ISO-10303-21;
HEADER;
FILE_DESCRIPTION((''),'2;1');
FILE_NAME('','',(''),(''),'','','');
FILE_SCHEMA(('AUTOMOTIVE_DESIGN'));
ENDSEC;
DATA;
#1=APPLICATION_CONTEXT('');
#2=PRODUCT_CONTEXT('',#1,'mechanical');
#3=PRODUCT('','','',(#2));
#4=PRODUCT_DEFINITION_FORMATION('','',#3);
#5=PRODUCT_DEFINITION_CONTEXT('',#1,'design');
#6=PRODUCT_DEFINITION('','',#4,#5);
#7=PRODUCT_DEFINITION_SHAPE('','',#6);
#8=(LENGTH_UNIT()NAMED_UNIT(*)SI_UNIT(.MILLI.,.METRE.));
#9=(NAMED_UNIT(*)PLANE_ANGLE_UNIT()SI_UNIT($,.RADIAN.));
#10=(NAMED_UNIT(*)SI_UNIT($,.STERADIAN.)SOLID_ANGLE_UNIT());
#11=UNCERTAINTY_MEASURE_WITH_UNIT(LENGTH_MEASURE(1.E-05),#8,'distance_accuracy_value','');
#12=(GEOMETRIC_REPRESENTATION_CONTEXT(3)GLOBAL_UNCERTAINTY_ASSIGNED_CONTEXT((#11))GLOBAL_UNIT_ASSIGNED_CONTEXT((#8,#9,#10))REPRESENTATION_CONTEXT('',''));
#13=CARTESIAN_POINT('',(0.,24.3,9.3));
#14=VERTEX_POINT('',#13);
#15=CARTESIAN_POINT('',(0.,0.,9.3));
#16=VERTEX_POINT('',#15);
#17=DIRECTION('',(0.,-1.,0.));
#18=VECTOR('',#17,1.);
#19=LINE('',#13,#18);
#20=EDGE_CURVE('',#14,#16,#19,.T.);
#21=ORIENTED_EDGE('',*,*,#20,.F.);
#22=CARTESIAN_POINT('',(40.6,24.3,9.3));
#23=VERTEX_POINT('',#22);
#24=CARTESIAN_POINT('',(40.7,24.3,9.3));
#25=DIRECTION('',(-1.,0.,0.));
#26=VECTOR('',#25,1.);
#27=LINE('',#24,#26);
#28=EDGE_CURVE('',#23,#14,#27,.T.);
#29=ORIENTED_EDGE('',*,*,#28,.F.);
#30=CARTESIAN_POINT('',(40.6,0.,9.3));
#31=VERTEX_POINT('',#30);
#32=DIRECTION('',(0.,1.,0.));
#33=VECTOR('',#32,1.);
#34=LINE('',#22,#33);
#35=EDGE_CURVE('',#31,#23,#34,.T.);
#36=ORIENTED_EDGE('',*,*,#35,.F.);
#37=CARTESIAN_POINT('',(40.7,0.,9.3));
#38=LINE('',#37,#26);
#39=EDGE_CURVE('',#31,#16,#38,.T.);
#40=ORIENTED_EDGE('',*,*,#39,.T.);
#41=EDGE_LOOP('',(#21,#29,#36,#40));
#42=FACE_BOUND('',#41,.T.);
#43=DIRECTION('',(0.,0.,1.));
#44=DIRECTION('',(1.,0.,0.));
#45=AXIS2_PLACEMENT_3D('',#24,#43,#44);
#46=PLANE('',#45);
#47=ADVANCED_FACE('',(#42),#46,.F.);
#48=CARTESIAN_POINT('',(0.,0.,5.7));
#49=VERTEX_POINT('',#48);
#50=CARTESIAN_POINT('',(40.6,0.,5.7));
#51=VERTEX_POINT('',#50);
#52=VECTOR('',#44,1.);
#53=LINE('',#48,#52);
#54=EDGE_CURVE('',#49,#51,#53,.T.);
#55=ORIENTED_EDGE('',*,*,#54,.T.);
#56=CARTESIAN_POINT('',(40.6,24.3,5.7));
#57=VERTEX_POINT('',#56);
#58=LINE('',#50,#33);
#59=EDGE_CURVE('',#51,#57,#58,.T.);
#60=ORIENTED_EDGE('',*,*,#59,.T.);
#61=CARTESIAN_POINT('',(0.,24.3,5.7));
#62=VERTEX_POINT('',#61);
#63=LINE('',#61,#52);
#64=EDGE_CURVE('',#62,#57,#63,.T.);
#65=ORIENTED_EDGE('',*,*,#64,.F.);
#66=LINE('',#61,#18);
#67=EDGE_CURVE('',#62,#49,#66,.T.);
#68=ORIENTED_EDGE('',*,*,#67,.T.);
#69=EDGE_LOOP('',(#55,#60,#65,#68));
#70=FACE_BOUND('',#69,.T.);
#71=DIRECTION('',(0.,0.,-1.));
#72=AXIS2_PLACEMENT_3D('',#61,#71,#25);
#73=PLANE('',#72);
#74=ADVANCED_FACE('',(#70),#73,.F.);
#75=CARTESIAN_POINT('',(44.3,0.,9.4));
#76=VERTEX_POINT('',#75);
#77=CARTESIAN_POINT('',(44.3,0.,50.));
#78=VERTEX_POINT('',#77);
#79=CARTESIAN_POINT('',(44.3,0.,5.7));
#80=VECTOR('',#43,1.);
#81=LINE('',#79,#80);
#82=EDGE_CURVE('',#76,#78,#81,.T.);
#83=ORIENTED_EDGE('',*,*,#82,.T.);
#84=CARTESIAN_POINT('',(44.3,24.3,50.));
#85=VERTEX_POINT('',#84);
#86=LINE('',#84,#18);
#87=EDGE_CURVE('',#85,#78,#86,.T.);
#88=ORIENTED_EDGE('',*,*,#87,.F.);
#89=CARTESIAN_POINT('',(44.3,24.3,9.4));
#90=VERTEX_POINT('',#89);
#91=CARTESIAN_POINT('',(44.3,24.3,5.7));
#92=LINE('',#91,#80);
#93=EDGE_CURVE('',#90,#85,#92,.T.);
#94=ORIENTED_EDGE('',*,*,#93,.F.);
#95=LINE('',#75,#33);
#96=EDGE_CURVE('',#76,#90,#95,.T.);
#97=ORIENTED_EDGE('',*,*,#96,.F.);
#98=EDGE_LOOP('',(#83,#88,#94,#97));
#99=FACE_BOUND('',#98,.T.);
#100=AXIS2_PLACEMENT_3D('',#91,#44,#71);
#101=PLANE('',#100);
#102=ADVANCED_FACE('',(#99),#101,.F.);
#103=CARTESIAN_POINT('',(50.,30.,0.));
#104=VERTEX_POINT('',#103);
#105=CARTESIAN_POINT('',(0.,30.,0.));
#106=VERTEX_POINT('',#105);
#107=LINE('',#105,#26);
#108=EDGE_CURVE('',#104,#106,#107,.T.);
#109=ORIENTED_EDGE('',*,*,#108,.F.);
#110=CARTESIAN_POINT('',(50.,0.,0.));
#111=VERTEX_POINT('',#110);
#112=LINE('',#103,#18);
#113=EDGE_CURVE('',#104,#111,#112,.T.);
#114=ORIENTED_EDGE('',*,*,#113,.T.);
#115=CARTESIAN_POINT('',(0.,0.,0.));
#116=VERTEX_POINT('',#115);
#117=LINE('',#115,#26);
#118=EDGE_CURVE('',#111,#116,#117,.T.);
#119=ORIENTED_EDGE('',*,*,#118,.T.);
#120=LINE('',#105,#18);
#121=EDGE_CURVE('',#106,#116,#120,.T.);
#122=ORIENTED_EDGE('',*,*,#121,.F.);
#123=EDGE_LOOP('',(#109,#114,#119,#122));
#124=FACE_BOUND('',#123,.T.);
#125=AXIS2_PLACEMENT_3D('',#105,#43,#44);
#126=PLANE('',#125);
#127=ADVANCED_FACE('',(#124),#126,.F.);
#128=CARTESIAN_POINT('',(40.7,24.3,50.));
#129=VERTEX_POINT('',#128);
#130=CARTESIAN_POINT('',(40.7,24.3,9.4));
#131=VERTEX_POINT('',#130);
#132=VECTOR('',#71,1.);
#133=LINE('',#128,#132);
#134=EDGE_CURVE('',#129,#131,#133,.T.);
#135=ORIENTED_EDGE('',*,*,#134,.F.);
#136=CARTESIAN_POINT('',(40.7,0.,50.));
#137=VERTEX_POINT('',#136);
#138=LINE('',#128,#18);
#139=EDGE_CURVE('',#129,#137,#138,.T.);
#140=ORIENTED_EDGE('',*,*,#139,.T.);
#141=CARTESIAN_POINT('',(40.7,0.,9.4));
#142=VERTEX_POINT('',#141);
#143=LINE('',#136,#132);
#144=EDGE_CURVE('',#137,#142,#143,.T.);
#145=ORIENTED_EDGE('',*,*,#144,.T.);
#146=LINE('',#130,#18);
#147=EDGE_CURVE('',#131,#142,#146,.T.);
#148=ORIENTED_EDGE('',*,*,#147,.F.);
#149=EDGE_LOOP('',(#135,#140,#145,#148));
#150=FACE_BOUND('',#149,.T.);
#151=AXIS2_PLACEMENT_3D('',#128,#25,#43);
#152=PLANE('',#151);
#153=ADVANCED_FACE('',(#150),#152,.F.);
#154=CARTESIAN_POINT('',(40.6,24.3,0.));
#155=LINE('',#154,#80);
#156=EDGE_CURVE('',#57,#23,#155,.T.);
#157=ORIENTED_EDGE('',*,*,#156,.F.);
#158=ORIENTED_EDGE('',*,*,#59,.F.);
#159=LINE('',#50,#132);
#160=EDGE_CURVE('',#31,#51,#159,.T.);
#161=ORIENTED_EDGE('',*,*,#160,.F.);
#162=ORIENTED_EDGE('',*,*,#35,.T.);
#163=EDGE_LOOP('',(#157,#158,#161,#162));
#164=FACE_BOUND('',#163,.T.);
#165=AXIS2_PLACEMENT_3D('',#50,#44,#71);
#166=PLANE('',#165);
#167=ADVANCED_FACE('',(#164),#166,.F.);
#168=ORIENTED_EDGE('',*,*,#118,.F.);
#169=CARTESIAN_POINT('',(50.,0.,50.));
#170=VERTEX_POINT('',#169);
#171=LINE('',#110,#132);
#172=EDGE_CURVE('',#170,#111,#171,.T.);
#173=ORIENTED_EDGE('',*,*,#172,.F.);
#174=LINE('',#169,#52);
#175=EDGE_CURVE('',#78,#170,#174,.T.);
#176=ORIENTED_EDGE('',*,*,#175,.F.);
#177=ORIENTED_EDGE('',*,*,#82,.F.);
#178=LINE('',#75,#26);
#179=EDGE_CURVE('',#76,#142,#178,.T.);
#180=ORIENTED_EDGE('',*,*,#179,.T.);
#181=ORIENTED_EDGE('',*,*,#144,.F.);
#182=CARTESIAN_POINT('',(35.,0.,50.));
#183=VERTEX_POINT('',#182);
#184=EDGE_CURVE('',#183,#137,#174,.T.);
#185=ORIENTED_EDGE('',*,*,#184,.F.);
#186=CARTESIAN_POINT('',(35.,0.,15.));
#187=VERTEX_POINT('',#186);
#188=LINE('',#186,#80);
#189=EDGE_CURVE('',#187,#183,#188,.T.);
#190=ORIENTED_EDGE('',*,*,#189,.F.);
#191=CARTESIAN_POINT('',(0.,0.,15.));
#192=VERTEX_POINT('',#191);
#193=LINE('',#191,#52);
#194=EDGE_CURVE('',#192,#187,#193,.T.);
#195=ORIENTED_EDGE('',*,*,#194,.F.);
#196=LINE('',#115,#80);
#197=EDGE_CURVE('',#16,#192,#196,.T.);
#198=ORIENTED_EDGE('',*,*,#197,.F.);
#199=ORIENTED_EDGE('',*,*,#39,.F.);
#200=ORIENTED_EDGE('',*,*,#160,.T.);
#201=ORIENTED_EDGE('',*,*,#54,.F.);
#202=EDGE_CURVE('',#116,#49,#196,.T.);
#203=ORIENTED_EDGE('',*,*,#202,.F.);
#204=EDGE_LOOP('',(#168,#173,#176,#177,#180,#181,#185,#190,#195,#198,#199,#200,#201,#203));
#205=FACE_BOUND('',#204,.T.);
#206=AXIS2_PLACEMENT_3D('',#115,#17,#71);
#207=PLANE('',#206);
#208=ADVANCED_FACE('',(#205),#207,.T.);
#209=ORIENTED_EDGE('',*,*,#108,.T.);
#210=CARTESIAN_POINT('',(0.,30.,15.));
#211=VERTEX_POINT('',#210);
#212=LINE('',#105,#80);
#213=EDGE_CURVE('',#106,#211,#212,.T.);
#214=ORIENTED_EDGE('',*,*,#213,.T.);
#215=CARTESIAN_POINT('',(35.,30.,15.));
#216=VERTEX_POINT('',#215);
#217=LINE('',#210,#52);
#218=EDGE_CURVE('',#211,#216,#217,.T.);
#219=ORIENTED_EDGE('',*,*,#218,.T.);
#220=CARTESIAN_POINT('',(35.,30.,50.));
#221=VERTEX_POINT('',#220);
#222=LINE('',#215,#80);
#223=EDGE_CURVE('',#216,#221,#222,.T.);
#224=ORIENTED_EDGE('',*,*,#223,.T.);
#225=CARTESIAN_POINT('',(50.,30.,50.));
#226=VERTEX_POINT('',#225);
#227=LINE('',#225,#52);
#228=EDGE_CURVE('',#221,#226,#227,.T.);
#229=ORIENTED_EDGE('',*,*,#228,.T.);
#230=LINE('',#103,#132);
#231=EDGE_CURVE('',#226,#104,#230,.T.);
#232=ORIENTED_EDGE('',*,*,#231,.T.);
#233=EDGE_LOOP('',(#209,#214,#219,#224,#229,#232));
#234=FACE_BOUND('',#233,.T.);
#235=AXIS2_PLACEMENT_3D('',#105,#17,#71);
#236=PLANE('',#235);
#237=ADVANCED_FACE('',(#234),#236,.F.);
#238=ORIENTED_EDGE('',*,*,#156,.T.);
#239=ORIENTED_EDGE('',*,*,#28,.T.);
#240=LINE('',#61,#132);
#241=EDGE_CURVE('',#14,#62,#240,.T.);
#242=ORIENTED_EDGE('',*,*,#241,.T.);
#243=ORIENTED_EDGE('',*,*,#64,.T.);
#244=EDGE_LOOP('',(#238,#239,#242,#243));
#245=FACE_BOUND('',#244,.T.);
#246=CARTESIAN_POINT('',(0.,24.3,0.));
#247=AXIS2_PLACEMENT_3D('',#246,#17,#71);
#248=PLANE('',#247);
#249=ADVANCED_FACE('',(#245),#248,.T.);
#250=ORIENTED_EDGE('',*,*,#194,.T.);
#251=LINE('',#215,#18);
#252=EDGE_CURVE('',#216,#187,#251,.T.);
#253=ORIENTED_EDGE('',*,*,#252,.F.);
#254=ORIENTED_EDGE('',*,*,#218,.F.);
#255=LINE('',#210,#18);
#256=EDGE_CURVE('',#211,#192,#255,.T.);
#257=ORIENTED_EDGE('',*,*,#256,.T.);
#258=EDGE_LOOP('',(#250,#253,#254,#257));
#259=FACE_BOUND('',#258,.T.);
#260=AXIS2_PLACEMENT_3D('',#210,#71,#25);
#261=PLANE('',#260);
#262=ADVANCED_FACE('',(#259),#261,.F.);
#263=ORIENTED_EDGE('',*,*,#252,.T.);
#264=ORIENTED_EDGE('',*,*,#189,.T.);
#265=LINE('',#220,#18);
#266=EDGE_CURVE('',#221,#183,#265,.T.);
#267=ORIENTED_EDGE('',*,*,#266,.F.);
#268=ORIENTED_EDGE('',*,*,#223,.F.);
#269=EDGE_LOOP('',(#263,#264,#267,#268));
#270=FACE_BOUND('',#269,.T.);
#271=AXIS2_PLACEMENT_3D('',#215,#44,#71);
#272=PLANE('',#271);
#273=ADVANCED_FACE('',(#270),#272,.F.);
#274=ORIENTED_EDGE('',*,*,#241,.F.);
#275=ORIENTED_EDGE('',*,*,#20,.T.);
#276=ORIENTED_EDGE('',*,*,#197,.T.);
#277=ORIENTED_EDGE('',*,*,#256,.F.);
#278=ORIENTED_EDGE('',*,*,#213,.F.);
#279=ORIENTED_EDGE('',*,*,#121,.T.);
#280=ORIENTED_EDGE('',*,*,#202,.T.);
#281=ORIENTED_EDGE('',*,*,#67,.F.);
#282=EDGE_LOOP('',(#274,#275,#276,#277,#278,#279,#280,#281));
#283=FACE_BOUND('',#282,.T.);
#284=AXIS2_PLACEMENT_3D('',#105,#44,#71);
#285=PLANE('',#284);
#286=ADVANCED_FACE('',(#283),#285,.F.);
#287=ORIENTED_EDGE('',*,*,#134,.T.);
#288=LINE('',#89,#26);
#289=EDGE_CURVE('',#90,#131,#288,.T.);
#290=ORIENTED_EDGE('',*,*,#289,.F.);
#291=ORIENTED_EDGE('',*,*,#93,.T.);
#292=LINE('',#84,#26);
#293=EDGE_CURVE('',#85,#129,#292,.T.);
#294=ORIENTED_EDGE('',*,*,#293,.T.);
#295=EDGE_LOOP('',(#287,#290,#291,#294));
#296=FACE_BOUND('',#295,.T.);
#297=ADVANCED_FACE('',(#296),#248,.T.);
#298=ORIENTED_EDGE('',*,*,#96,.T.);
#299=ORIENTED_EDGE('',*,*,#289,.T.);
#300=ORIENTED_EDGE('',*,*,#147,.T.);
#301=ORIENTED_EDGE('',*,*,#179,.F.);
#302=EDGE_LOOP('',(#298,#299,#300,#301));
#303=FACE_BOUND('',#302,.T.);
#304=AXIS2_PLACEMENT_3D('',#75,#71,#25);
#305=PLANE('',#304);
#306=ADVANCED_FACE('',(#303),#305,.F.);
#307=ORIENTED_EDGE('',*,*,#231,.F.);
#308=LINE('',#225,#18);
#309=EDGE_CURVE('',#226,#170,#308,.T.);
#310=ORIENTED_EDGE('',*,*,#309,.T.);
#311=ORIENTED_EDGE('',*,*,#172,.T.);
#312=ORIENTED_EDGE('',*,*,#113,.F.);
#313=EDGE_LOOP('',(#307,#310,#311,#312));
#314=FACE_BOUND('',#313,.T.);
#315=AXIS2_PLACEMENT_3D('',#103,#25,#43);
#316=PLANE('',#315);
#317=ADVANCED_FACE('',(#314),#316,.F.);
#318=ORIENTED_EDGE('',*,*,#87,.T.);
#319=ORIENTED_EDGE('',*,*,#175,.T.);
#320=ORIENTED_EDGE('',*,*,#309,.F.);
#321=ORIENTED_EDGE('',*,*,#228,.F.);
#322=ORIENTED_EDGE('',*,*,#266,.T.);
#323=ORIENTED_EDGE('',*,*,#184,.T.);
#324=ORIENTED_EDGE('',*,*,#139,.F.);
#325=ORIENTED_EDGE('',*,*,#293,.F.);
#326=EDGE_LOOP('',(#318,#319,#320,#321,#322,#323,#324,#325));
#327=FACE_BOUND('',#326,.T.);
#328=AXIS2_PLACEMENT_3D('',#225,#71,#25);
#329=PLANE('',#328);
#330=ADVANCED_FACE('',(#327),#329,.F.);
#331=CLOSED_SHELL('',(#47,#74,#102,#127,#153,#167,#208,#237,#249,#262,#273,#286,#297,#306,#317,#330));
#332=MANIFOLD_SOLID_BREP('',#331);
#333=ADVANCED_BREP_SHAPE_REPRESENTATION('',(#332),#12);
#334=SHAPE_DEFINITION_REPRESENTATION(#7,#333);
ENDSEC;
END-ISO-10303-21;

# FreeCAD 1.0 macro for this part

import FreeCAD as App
import Part
import Sketcher

doc = App.newDocument("Part")
body = doc.addObject("PartDesign::Body", "Body")

sketch1 = body.newObject("Sketcher::SketchObject", "Sketch")
sketch1.AttachmentSupport = (doc.getObject("XZ_Plane"), [""])
sketch1.MapMode = "FlatFace"
sketch1.addGeometry([
    Part.LineSegment(App.Vector(0, 0, 0), App.Vector(0, 15, 0)),
    Part.LineSegment(App.Vector(0, 15, 0), App.Vector(35, 15, 0)),
    Part.LineSegment(App.Vector(35, 15, 0), App.Vector(35, 50, 0)),
    Part.LineSegment(App.Vector(35, 50, 0), App.Vector(50, 50, 0)),
    Part.LineSegment(App.Vector(50, 50, 0), App.Vector(50, 0, 0)),
    Part.LineSegment(App.Vector(50, 0, 0), App.Vector(0, 0, 0)),
], False)
sketch1.addConstraint([
    Sketcher.Constraint("Coincident", 0, 2, 1, 1),
    Sketcher.Constraint("Coincident", 1, 2, 2, 1),
    Sketcher.Constraint("Coincident", 2, 2, 3, 1),
    Sketcher.Constraint("Coincident", 3, 2, 4, 1),
    Sketcher.Constraint("Coincident", 4, 2, 5, 1),
    Sketcher.Constraint("Coincident", 5, 2, 0, 1),
    Sketcher.Constraint("Vertical", 0),
    Sketcher.Constraint("Horizontal", 1),
    Sketcher.Constraint("Vertical", 2),
    Sketcher.Constraint("Horizontal", 3),
    Sketcher.Constraint("Vertical", 4),
    Sketcher.Constraint("Horizontal", 5),
    Sketcher.Constraint("Coincident", 5, 2, -1, 1),
    Sketcher.Constraint("Equal", 3, 0),
    Sketcher.Constraint("Equal", 1, 2),
    Sketcher.Constraint("DistanceX", 1, 1, 1, 2, 35.0),
    Sketcher.Constraint("DistanceX", 3, 1, 3, 2, 15.0),
])
pad1 = body.newObject("PartDesign::Pad", "Pad")
pad1.Profile = sketch1
pad1.Length = 30
pad1.Reversed = True

sketch2 = body.newObject("Sketcher::SketchObject", "Sketch001")
sketch2.AttachmentSupport = (doc.getObject("XZ_Plane"), [""])
sketch2.MapMode = "FlatFace"
sketch2.addGeometry([
    Part.LineSegment(App.Vector(40.7, 50, 0), App.Vector(40.7, 9.3, 0)),
    Part.LineSegment(App.Vector(40.7, 9.3, 0), App.Vector(0, 9.3, 0)),
    Part.LineSegment(App.Vector(0, 9.3, 0), App.Vector(0, 5.7, 0)),
    Part.LineSegment(App.Vector(0, 5.7, 0), App.Vector(44.3, 5.7, 0)),
    Part.LineSegment(App.Vector(44.3, 5.7, 0), App.Vector(44.3, 50, 0)),
    Part.LineSegment(App.Vector(44.3, 50, 0), App.Vector(40.7, 50, 0)),
], False)
sketch2.addConstraint([
    Sketcher.Constraint("Coincident", 0, 2, 1, 1),
    Sketcher.Constraint("Coincident", 1, 2, 2, 1),
    Sketcher.Constraint("Coincident", 2, 2, 3, 1),
    Sketcher.Constraint("Coincident", 3, 2, 4, 1),
    Sketcher.Constraint("Coincident", 4, 2, 5, 1),
    Sketcher.Constraint("Coincident", 5, 2, 0, 1),
    Sketcher.Constraint("Vertical", 0),
    Sketcher.Constraint("Horizontal", 1),
    Sketcher.Constraint("Vertical", 2),
    Sketcher.Constraint("Horizontal", 3),
    Sketcher.Constraint("Vertical", 4),
    Sketcher.Constraint("Horizontal", 5),
    Sketcher.Constraint("PointOnObject", 1, 2, -2),
    Sketcher.Constraint("Equal", 1, 0),
    Sketcher.Constraint("Equal", 5, 2),
    Sketcher.Constraint("DistanceX", 1, 2, 1, 1, 40.7),
    Sketcher.Constraint("DistanceX", 3, 1, 3, 2, 44.3),
    Sketcher.Constraint("DistanceY", -1, 1, 4, 2, 50.0),
])
pocket1 = body.newObject("PartDesign::Pocket", "Pocket")
pocket1.Profile = sketch2
pocket1.Length = 24.3

sketch3 = body.newObject("Sketcher::SketchObject", "Sketch002")
sketch3.AttachmentSupport = (doc.getObject("XZ_Plane"), [""])
sketch3.MapMode = "FlatFace"
sketch3.AttachmentOffset = App.Placement(App.Vector(0, 0, -24.3), App.Rotation())
sketch3.addGeometry([
    Part.LineSegment(App.Vector(40.6, 9.4, 0), App.Vector(40.6, 5.7, 0)),
    Part.LineSegment(App.Vector(40.6, 5.7, 0), App.Vector(44.3, 5.7, 0)),
    Part.LineSegment(App.Vector(44.3, 5.7, 0), App.Vector(44.3, 9.4, 0)),
    Part.LineSegment(App.Vector(44.3, 9.4, 0), App.Vector(40.6, 9.4, 0)),
], False)
sketch3.addConstraint([
    Sketcher.Constraint("Coincident", 0, 2, 1, 1),
    Sketcher.Constraint("Coincident", 1, 2, 2, 1),
    Sketcher.Constraint("Coincident", 2, 2, 3, 1),
    Sketcher.Constraint("Coincident", 3, 2, 0, 1),
    Sketcher.Constraint("Vertical", 0),
    Sketcher.Constraint("Horizontal", 1),
    Sketcher.Constraint("Vertical", 2),
    Sketcher.Constraint("Horizontal", 3),
    Sketcher.Constraint("Equal", 3, 0),
    Sketcher.Constraint("DistanceX", 1, 1, 1, 2, 3.7),
    Sketcher.Constraint("DistanceX", -1, 1, 0, 2, 40.6),
    Sketcher.Constraint("DistanceY", -1, 1, 0, 2, 5.7),
])
pad2 = body.newObject("PartDesign::Pad", "Pad001")
pad2.Profile = sketch3
pad2.Length = 24.3

doc.recompute()
